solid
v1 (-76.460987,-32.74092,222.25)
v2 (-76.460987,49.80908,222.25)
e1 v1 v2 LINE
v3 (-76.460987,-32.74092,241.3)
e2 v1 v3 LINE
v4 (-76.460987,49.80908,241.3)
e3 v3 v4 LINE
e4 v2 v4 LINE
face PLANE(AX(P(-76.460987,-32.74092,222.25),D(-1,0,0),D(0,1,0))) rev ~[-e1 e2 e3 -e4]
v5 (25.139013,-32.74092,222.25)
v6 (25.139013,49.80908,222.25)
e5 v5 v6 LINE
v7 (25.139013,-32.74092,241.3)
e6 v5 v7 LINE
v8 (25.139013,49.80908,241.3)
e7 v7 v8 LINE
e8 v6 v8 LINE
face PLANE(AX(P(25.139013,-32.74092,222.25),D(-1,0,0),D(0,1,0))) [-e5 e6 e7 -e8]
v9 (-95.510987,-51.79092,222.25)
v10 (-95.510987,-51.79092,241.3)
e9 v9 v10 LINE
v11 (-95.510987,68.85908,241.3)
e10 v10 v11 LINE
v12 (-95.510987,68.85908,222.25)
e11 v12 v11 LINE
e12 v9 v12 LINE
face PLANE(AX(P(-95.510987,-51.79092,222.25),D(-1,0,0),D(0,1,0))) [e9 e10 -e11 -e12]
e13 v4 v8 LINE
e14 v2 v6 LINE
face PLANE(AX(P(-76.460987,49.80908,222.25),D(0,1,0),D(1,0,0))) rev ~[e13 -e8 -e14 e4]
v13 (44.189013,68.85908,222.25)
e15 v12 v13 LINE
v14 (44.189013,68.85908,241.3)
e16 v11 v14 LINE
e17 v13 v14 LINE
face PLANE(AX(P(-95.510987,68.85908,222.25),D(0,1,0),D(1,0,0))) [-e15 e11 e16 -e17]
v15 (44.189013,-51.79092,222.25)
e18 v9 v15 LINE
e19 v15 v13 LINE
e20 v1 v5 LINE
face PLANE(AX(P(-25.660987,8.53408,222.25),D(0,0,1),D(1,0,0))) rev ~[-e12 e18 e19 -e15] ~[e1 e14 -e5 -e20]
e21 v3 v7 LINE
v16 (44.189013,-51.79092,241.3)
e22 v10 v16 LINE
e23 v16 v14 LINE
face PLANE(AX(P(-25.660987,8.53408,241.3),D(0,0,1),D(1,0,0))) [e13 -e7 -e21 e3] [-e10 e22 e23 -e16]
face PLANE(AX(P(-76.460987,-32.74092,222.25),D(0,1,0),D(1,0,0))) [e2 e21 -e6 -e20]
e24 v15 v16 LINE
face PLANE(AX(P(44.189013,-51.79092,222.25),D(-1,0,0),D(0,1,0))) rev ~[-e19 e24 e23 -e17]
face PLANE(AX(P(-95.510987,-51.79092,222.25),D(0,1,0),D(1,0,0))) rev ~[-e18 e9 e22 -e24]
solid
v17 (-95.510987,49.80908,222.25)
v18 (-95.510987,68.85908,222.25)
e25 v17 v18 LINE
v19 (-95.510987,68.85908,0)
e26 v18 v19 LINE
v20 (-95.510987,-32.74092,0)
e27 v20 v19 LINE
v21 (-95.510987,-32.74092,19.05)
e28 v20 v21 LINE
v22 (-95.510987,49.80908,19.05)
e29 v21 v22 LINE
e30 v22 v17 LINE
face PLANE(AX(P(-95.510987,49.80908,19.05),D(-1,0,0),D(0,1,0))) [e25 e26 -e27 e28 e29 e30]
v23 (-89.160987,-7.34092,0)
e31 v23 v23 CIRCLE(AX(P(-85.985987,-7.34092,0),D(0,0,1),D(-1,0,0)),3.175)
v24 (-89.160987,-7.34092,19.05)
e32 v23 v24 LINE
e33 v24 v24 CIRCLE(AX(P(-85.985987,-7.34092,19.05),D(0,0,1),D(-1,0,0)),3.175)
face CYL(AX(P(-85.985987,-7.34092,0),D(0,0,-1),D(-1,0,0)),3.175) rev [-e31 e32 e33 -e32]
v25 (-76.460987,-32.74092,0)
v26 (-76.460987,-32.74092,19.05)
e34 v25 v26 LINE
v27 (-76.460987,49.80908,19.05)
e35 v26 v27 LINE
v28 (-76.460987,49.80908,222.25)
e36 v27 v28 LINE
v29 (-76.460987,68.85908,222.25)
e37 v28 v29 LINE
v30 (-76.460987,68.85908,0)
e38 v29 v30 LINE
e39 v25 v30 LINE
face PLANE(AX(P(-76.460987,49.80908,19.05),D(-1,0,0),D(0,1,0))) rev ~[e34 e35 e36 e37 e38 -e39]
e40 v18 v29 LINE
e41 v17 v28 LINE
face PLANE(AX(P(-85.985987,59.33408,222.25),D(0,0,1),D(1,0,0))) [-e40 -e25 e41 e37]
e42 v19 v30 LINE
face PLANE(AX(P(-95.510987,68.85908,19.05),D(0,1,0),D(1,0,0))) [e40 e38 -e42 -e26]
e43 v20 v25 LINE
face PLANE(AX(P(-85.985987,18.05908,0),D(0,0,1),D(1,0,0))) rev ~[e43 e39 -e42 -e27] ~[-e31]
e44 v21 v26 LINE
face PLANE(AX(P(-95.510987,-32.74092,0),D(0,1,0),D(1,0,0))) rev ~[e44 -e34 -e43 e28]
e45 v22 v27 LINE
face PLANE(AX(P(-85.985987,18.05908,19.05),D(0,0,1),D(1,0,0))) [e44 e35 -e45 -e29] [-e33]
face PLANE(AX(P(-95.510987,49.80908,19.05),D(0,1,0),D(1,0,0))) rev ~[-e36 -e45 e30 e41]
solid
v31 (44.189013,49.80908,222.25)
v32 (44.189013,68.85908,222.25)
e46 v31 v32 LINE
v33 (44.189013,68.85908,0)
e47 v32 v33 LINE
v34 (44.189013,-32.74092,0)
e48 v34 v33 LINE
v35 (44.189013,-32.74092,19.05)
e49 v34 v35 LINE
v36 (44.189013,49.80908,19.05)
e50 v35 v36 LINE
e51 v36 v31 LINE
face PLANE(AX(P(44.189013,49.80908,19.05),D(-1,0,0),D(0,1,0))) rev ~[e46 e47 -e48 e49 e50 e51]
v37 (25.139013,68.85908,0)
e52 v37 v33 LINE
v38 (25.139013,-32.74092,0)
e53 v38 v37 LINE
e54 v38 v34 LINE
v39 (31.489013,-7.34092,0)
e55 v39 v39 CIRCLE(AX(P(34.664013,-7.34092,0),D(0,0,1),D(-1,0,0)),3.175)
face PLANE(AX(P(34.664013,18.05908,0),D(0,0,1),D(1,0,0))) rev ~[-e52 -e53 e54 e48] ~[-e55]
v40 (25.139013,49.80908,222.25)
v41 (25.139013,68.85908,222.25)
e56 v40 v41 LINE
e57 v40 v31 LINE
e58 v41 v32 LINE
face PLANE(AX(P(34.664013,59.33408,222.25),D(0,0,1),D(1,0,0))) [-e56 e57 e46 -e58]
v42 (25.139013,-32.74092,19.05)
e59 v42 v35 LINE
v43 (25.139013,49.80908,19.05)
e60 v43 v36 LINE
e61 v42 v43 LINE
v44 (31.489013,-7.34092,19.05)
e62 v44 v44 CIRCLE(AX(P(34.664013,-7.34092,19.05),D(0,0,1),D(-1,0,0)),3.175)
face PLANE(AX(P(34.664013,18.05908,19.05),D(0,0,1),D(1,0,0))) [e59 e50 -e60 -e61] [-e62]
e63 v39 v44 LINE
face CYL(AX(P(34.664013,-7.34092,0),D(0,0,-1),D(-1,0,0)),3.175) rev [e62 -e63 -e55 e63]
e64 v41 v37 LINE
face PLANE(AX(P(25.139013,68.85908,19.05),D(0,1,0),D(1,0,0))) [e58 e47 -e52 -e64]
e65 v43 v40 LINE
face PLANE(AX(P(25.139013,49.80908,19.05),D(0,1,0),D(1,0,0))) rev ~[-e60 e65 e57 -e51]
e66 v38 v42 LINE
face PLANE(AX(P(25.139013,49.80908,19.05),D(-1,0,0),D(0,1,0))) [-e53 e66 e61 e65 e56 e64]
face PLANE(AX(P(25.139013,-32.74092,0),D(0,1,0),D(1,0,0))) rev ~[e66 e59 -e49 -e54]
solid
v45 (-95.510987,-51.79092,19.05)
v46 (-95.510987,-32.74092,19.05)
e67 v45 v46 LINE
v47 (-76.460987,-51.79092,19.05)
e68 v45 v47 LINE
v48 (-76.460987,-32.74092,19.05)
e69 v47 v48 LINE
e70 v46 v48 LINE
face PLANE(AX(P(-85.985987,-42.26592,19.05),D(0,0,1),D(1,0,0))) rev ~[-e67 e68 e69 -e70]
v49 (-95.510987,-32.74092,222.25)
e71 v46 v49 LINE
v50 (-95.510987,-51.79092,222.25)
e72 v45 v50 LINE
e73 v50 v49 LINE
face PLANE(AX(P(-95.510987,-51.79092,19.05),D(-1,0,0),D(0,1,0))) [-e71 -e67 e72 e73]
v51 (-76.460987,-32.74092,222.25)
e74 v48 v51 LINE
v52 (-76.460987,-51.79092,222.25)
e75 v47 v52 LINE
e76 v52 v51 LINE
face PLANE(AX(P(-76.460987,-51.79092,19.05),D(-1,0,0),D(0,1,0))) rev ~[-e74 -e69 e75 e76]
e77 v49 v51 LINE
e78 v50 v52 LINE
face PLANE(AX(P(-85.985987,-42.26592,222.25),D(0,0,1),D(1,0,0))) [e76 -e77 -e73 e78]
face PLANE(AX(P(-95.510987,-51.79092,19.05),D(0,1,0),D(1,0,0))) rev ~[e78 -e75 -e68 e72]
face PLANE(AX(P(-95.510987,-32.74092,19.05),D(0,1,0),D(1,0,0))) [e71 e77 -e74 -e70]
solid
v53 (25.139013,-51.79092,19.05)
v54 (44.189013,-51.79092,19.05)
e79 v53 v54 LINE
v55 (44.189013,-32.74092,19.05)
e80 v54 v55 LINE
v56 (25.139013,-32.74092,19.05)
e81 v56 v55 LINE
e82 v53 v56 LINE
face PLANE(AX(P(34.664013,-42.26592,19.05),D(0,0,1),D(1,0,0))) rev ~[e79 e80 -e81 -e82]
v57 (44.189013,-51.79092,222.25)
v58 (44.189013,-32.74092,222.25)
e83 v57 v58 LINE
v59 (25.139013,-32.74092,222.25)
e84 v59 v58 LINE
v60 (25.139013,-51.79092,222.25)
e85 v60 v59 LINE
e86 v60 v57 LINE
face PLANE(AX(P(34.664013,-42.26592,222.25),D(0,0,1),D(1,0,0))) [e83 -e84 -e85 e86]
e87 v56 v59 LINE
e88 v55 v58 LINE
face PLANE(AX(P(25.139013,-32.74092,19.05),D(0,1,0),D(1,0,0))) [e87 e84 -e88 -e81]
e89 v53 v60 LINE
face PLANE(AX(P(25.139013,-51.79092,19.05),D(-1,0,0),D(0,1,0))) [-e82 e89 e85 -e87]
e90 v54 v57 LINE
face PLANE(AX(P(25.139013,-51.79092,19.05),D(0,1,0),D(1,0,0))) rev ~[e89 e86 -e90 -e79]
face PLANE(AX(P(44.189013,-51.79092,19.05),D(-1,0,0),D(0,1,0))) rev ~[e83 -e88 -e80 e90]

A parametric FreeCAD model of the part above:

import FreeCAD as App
import Part
import Sketcher

V = App.Vector
Q = App.Units.Quantity


def add_polygon(sketch, points):
    """Adds a closed chain of lines whose ends are joined by coincident constraints."""
    first, n = sketch.GeometryCount, len(points)
    for a, b in zip(points, points[1:] + points[:1]):
        sketch.addGeometry(Part.LineSegment(App.Vector(*a, 0), App.Vector(*b, 0)), False)
    for i in range(n):
        sketch.addConstraint(Sketcher.Constraint("Coincident", first + i, 2, first + (i + 1) % n, 1))

doc = App.newDocument("Part")
params = doc.addObject("Spreadsheet::Sheet", "Params")
for row, (alias, value) in enumerate([
    ("sketch1_diameter", "0.25 in"),
    ("sketch1_height", "4 in"),
    ("sketch1_width", "0.75 in"),
    ("pad1_length", "0.75 in"),
    ("sketch2_diameter", "0.25 in"),
    ("sketch2_height", "4 in"),
    ("sketch2_width", "0.75 in"),
    ("pad2_length", "0.75 in"),
    ("sketch3_width", "0.75 in"),
    ("pad3_length", "8 in"),
    ("sketch4_width", "4 in"),
    ("sketch4_width2", "5.5 in"),
    ("sketch4_height", "4.75 in"),
    ("pad4_length", "0.75 in"),
], start=1):
    params.set(f"A{row}", alias)
    params.set(f"B{row}", "=" + value)
    params.setAlias(f"B{row}", alias)

body = doc.addObject("PartDesign::Body", "Body")

# Sketch on XY plane
sketch1 = body.newObject("Sketcher::SketchObject", "Sketch")
sketch1.AttachmentSupport = (doc.getObject("XY_Plane"), [""])
sketch1.MapMode = "FlatFace"
add_polygon(sketch1, [(-95.5, 68.9), (-95.5, -32.7), (-76.5, -32.7), (-76.5, 68.9)])  # lines 0-3
sketch1.addGeometry(Part.Circle(V(-86, -7.3, 0), V(0, 0, 1), 3.2), False)  # 4
sketch1.addConstraint([
    Sketcher.Constraint("Vertical", 0),
    Sketcher.Constraint("Horizontal", 1),
    Sketcher.Constraint("Vertical", 2),
    Sketcher.Constraint("Horizontal", 3),
    Sketcher.Constraint("Diameter", 4, Q("0.25 in")),
    Sketcher.Constraint("DistanceY", 0, 2, 0, 1, Q("4 in")),
    Sketcher.Constraint("DistanceY", 0, 2, 4, 3, Q("1 in")),
    Sketcher.Constraint("DistanceX", 1, 1, 1, 2, Q("0.75 in")),
    Sketcher.Constraint("DistanceX", 0, 2, 4, 3, Q("0.375 in")),
    Sketcher.Constraint("DistanceY", 4, 3, -1, 1, 7.34092),
    Sketcher.Constraint("DistanceX", 4, 3, -1, 1, 85.985987),
])
sketch1.setExpression("Constraints[8]", "Params.sketch1_diameter")
sketch1.setExpression("Constraints[9]", "Params.sketch1_height")
sketch1.setExpression("Constraints[11]", "Params.sketch1_width")
pad1 = body.newObject("PartDesign::Pad", "Pad")
pad1.Profile = sketch1
pad1.setExpression("Length", "Params.pad1_length")
body2 = doc.addObject("PartDesign::Body", "Body001")

# Sketch on XY plane
sketch2 = body2.newObject("Sketcher::SketchObject", "Sketch001")
sketch2.AttachmentSupport = (doc.getObject("XY_Plane001"), [""])
sketch2.MapMode = "FlatFace"
add_polygon(sketch2, [(25.1, 68.9), (25.1, -32.7), (44.2, -32.7), (44.2, 68.9)])  # lines 0-3
sketch2.addGeometry(Part.Circle(V(34.7, -7.3, 0), V(0, 0, 1), 3.2), False)  # 4
sketch2.addConstraint([
    Sketcher.Constraint("Vertical", 0),
    Sketcher.Constraint("Horizontal", 1),
    Sketcher.Constraint("Vertical", 2),
    Sketcher.Constraint("Horizontal", 3),
    Sketcher.Constraint("Diameter", 4, Q("0.25 in")),
    Sketcher.Constraint("DistanceY", 0, 2, 0, 1, Q("4 in")),
    Sketcher.Constraint("DistanceY", 0, 2, 4, 3, Q("1 in")),
    Sketcher.Constraint("DistanceX", 1, 1, 1, 2, Q("0.75 in")),
    Sketcher.Constraint("DistanceX", 0, 2, 4, 3, Q("0.375 in")),
    Sketcher.Constraint("DistanceY", 4, 3, -1, 1, 7.34092),
    Sketcher.Constraint("DistanceX", -1, 1, 4, 3, 34.664013),
])
sketch2.setExpression("Constraints[8]", "Params.sketch2_diameter")
sketch2.setExpression("Constraints[9]", "Params.sketch2_height")
sketch2.setExpression("Constraints[11]", "Params.sketch2_width")
pad2 = body2.newObject("PartDesign::Pad", "Pad001")
pad2.Profile = sketch2
pad2.setExpression("Length", "Params.pad2_length")
body.AllowCompound = True
doc.recompute()

boolean = body.newObject("PartDesign::Boolean", "Boolean")
boolean.Type = "Fuse"
boolean.addObjects([body2])

# Sketch on XY plane
sketch3 = body.newObject("Sketcher::SketchObject", "Sketch002")
sketch3.AttachmentSupport = (doc.getObject("XY_Plane"), [""])
sketch3.MapMode = "FlatFace"
sketch3.AttachmentOffset = App.Placement(V(0, 0, 0.75 * 25.4), App.Rotation())
add_polygon(sketch3, [(-96, 69), (-96, 50), (-76, 50), (-76, 69)])  # lines 0-3
add_polygon(sketch3, [(25, 69), (25, 50), (44, 50), (44, 69)])  # lines 4-7
add_polygon(sketch3, [(-96, -33), (-96, -52), (-76, -52), (-76, -33)])  # lines 8-11
add_polygon(sketch3, [(25, -33), (25, -52), (44, -52), (44, -33)])  # lines 12-15
sketch3.addConstraint([
    Sketcher.Constraint("Vertical", 0),
    Sketcher.Constraint("Horizontal", 1),
    Sketcher.Constraint("Vertical", 2),
    Sketcher.Constraint("Horizontal", 3),
    Sketcher.Constraint("Vertical", 4),
    Sketcher.Constraint("Horizontal", 5),
    Sketcher.Constraint("Vertical", 6),
    Sketcher.Constraint("Horizontal", 7),
    Sketcher.Constraint("Vertical", 8),
    Sketcher.Constraint("Horizontal", 9),
    Sketcher.Constraint("Vertical", 10),
    Sketcher.Constraint("Horizontal", 11),
    Sketcher.Constraint("Vertical", 12),
    Sketcher.Constraint("Horizontal", 13),
    Sketcher.Constraint("Vertical", 14),
    Sketcher.Constraint("Horizontal", 15),
    Sketcher.Constraint("Horizontal", 1, 2, 4, 2),
    Sketcher.Constraint("Horizontal", 3, 2, 6, 2),
    Sketcher.Constraint("Horizontal", 9, 2, 12, 2),
    Sketcher.Constraint("Horizontal", 11, 2, 14, 2),
    Sketcher.Constraint("Vertical", 3, 2, 8, 2),
    Sketcher.Constraint("Vertical", 2, 2, 9, 2),
    Sketcher.Constraint("Vertical", 7, 2, 12, 2),
    Sketcher.Constraint("Vertical", 6, 2, 13, 2),
    Sketcher.Constraint("Equal", 3, 5),
    Sketcher.Constraint("Equal", 15, 0),
    Sketcher.Constraint("Equal", 6, 8),
    Sketcher.Constraint("DistanceX", 1, 2, 4, 2, Q("4 in")),
    Sketcher.Constraint("DistanceY", 8, 2, 0, 2, Q("4 in")),
    Sketcher.Constraint("DistanceX", 1, 1, 1, 2, Q("0.75 in")),
    Sketcher.Constraint("DistanceY", -1, 1, 0, 2, 49.80908),
    Sketcher.Constraint("DistanceX", 0, 2, -1, 1, 95.510987),
])
sketch3.setExpression("Constraints[45]", "Params.sketch3_width")
pad3 = body.newObject("PartDesign::Pad", "Pad002")
pad3.Profile = sketch3
pad3.setExpression("Length", "Params.pad3_length")
body3 = doc.addObject("PartDesign::Body", "Body002")

# Sketch on XY plane
sketch4 = body3.newObject("Sketcher::SketchObject", "Sketch003")
sketch4.AttachmentSupport = (doc.getObject("XY_Plane002"), [""])
sketch4.MapMode = "FlatFace"
sketch4.AttachmentOffset = App.Placement(V(0, 0, 8.75 * 25.4), App.Rotation())
add_polygon(sketch4, [(-96, 69), (-96, -52), (44, -52), (44, 69)])  # lines 0-3
add_polygon(sketch4, [(25, -33), (-76, -33), (-76, 50), (25, 50)])  # lines 4-7
sketch4.addConstraint([
    Sketcher.Constraint("Vertical", 0),
    Sketcher.Constraint("Horizontal", 1),
    Sketcher.Constraint("Vertical", 2),
    Sketcher.Constraint("Horizontal", 3),
    Sketcher.Constraint("Horizontal", 4),
    Sketcher.Constraint("Vertical", 5),
    Sketcher.Constraint("Horizontal", 6),
    Sketcher.Constraint("Vertical", 7),
    Sketcher.Constraint("DistanceX", 4, 2, 4, 1, Q("4 in")),
    Sketcher.Constraint("DistanceX", 1, 1, 1, 2, Q("5.5 in")),
    Sketcher.Constraint("DistanceY", 4, 2, 3, 2, Q("4 in")),
    Sketcher.Constraint("DistanceY", 0, 2, 5, 2, Q("4 in")),
    Sketcher.Constraint("DistanceY", 0, 2, 0, 1, Q("4.75 in")),
    Sketcher.Constraint("DistanceX", 0, 2, 4, 2, Q("0.75 in")),
    Sketcher.Constraint("DistanceY", 0, 2, -1, 1, 51.79092),
    Sketcher.Constraint("DistanceX", 0, 2, -1, 1, 95.510987),
])
sketch4.setExpression("Constraints[16]", "Params.sketch4_width")
sketch4.setExpression("Constraints[17]", "Params.sketch4_width2")
sketch4.setExpression("Constraints[20]", "Params.sketch4_height")
pad4 = body3.newObject("PartDesign::Pad", "Pad003")
pad4.Profile = sketch4
pad4.setExpression("Length", "Params.pad4_length")

doc.recompute()
